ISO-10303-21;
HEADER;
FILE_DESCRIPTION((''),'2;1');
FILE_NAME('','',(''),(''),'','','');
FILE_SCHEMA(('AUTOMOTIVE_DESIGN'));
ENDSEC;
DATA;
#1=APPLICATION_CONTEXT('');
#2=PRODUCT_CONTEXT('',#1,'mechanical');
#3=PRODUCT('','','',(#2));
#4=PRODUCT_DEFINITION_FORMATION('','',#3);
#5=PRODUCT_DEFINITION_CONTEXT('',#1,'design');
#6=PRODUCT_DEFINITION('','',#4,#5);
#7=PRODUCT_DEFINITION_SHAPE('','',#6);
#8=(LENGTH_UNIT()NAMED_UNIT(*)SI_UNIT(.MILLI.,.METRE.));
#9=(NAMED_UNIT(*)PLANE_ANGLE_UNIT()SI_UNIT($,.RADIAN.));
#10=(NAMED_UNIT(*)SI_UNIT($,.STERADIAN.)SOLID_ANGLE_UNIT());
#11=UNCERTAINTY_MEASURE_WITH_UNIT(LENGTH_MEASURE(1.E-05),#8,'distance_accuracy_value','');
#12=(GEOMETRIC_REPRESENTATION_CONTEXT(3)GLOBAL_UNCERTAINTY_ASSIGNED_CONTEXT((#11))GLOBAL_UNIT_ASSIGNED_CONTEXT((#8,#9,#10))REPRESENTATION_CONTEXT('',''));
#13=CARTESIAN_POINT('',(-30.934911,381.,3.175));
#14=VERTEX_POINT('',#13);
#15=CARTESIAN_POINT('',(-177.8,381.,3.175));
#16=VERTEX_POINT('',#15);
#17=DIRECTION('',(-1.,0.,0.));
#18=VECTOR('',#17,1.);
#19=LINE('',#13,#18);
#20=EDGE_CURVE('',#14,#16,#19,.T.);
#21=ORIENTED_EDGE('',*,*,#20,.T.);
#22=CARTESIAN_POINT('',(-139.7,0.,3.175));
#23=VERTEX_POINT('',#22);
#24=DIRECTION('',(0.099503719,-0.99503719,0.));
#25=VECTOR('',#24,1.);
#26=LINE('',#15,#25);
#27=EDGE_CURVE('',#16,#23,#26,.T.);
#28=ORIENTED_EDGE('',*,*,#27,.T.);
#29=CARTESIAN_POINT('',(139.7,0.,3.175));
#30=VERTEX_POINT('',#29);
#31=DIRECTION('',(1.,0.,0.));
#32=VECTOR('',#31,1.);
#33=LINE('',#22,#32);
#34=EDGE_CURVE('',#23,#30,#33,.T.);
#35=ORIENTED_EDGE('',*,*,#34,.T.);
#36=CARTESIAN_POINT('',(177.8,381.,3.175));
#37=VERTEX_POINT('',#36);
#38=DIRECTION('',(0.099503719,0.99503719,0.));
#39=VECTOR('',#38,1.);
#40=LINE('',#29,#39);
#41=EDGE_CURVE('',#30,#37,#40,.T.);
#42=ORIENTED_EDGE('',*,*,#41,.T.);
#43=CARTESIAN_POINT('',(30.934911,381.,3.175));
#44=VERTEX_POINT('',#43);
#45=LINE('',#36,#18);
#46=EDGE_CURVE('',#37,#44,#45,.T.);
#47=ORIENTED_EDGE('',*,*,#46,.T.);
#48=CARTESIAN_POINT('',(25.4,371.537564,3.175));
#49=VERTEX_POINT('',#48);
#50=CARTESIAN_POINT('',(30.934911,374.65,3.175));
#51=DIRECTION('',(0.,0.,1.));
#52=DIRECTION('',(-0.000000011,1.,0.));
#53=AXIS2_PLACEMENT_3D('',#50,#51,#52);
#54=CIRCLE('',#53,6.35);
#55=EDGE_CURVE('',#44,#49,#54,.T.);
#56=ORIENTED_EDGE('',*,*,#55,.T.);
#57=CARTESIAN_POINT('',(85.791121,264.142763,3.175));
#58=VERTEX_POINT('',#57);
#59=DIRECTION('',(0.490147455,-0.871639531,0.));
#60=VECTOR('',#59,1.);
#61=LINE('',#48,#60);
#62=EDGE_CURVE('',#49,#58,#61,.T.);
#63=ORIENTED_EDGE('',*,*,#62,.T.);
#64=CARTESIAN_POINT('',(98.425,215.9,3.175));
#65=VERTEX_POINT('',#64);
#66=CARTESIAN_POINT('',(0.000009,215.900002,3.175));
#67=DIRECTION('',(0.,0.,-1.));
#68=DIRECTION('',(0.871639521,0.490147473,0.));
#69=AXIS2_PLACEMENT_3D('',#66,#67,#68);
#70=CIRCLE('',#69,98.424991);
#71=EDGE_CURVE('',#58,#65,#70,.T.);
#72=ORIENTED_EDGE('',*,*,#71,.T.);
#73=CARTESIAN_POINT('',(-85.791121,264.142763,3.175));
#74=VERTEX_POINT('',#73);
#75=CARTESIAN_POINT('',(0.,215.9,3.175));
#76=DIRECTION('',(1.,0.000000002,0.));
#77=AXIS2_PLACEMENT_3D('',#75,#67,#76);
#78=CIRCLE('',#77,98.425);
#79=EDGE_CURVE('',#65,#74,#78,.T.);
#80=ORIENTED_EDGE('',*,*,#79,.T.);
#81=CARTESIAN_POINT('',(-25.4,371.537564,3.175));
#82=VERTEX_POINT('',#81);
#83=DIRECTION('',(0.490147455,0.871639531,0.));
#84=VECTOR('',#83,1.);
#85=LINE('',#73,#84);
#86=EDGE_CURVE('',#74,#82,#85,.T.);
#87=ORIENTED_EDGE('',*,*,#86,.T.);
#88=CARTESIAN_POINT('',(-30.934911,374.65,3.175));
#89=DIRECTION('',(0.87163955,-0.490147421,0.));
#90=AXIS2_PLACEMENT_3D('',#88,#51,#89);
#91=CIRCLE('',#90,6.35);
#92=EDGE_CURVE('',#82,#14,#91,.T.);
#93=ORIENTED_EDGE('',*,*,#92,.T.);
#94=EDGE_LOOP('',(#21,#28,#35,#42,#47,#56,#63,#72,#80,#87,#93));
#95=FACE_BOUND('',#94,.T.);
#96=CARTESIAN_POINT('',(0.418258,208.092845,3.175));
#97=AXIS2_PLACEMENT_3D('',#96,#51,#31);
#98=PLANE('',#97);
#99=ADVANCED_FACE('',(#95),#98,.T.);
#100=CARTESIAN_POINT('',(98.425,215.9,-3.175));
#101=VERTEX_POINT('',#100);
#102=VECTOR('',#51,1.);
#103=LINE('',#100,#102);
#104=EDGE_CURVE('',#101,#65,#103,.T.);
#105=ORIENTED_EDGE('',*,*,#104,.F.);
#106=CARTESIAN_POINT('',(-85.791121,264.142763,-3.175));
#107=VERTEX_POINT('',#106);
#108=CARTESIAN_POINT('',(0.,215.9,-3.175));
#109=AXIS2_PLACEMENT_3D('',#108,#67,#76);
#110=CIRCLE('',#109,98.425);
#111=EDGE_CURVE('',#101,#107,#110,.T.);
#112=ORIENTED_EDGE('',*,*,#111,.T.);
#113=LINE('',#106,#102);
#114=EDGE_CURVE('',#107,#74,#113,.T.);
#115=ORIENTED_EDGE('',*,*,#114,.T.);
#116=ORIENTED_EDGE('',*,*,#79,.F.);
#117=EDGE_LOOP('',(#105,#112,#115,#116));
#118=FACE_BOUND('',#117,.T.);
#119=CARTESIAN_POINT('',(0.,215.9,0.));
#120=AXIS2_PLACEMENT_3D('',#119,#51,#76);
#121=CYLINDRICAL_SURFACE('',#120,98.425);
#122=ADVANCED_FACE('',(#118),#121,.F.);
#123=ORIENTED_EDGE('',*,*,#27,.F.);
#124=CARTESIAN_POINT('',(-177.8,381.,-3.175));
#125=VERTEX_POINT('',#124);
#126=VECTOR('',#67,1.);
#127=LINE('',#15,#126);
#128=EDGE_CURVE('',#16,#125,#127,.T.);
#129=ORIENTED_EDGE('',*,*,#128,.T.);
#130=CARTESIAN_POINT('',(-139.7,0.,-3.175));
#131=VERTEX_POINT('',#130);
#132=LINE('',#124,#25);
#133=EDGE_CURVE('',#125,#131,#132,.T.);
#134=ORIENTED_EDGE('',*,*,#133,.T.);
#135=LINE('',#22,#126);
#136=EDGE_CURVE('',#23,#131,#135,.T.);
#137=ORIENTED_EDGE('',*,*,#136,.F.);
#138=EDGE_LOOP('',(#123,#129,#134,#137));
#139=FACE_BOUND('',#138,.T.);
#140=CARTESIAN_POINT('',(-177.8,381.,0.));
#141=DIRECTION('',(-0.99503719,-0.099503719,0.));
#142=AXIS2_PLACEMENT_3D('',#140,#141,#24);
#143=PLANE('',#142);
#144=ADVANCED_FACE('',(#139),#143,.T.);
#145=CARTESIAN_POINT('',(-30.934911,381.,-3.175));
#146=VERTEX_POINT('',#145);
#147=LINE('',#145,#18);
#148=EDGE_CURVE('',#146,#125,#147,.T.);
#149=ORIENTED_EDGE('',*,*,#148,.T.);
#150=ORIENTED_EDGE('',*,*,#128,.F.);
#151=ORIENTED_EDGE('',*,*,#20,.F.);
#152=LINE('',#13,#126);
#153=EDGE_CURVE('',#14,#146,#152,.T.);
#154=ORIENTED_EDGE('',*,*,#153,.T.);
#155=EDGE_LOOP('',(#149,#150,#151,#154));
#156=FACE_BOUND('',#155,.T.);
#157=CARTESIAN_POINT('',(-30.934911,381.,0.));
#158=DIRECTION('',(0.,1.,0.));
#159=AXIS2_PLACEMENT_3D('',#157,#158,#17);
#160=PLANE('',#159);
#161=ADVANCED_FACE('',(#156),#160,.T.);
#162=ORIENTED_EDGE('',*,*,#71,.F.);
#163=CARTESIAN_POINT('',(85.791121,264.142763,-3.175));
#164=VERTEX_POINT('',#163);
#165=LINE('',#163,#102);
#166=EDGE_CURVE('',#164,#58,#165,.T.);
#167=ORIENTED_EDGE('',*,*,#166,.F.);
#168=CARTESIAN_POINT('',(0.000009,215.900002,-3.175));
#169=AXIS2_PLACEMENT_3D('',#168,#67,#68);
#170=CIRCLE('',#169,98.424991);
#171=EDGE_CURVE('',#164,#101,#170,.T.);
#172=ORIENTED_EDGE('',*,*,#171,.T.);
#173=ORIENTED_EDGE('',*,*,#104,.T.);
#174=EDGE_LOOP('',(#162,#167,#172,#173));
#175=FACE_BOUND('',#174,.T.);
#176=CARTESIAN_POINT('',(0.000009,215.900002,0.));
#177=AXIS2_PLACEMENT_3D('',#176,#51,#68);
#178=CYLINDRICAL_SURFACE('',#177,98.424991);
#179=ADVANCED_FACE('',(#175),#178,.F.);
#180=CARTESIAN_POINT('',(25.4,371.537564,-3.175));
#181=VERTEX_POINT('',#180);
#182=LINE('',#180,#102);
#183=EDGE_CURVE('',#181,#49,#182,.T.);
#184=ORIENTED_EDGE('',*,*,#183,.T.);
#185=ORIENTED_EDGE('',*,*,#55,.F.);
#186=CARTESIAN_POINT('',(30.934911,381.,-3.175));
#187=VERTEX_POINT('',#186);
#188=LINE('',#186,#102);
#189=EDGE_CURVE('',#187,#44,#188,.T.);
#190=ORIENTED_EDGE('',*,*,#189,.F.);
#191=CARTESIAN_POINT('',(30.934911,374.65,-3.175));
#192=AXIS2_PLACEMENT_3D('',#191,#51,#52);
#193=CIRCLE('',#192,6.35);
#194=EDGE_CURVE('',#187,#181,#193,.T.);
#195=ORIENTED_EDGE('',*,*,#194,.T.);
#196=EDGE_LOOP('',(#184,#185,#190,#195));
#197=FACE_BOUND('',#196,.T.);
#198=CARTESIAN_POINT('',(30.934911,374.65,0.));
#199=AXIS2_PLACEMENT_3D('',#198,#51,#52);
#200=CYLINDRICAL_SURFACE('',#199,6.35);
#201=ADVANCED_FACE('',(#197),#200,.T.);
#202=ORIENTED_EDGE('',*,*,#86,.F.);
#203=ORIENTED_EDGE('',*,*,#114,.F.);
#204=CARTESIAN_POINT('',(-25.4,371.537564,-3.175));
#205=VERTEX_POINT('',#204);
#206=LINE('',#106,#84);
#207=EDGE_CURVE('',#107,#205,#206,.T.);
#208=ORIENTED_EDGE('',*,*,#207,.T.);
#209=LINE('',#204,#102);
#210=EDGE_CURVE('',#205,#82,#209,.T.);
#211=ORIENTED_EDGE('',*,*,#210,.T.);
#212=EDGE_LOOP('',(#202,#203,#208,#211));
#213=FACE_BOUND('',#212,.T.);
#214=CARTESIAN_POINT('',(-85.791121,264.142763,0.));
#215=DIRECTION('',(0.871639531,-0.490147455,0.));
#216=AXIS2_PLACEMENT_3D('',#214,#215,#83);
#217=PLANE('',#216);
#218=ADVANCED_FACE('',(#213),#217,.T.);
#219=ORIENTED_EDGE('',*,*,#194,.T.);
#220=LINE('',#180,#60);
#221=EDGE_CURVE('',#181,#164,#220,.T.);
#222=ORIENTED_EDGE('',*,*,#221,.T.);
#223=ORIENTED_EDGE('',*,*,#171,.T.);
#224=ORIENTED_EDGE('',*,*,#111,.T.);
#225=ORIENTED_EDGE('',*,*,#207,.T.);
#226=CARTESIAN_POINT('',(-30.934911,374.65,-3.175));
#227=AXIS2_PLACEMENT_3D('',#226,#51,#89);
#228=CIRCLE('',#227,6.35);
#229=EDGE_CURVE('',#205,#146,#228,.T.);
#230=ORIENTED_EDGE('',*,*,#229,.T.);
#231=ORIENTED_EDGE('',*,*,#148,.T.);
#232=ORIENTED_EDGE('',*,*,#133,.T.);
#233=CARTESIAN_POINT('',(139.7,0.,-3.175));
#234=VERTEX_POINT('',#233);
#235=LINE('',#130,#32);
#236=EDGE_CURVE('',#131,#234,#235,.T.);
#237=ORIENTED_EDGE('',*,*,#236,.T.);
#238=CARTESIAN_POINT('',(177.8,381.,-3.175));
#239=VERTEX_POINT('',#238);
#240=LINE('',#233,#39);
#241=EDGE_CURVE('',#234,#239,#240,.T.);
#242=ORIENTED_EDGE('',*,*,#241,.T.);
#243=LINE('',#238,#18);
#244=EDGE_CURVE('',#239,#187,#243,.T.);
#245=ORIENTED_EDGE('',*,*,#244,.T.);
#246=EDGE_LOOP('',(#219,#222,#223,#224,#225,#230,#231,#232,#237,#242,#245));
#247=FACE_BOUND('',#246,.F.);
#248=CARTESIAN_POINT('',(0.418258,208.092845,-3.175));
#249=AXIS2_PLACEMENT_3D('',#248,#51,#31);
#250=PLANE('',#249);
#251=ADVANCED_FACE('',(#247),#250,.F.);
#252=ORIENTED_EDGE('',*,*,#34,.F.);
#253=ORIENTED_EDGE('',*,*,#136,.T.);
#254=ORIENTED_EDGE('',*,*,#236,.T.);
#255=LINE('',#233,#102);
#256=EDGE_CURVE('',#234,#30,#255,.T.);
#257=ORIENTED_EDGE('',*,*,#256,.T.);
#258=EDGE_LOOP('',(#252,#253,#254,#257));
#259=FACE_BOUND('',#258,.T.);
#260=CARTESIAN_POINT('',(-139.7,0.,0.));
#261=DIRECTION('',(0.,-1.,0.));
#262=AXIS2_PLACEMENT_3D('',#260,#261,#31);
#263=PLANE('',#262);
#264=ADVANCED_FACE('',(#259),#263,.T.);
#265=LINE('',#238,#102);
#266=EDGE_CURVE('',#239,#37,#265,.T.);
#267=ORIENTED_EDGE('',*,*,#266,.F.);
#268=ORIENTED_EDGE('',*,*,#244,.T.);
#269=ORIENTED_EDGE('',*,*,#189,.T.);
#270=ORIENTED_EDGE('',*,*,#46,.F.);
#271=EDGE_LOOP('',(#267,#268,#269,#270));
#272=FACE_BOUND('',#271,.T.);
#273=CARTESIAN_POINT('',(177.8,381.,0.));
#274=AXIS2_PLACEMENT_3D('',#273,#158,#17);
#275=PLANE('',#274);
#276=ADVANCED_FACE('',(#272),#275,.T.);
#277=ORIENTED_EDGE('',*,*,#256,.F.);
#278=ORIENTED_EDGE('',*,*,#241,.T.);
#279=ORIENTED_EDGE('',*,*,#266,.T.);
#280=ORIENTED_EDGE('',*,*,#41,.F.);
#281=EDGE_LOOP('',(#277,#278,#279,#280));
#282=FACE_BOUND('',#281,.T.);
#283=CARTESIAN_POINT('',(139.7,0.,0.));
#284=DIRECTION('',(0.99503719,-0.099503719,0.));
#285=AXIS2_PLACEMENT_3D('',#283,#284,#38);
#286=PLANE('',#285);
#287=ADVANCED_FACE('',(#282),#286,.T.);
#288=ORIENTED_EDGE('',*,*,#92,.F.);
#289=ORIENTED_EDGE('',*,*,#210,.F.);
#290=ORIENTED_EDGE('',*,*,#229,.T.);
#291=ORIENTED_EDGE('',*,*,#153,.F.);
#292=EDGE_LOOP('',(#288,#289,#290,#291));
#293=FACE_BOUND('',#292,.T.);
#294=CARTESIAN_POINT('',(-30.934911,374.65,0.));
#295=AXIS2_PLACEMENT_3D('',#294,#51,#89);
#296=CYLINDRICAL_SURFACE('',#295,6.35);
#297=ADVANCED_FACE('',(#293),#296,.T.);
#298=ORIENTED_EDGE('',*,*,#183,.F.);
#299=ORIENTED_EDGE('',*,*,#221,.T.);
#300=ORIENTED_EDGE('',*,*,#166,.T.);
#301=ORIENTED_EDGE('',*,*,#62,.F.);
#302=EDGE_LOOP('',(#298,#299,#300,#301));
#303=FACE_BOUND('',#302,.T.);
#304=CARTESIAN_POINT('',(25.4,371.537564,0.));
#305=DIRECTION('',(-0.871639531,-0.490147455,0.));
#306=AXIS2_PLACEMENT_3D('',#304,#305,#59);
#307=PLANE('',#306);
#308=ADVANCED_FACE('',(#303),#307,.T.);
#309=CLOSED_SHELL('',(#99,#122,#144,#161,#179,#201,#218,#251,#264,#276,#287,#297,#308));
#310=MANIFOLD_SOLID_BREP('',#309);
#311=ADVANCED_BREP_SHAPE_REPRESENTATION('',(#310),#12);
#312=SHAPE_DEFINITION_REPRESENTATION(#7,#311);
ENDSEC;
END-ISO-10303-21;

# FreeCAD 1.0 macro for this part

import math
import FreeCAD as App
import Part
import Sketcher

V = App.Vector
Q = App.Units.Quantity

doc = App.newDocument("Part")
body = doc.addObject("PartDesign::Body", "Body")

# Sketch on XY plane
sketch1 = doc.addObject("Sketcher::SketchObject", "Sketch")
body.addObject(sketch1)
sketch1.AttachmentSupport = (doc.XY_Plane, [""])
sketch1.MapMode = "FlatFace"
sketch1.addGeometry(Part.LineSegment(V(-139.7, 0, 0), V(139.7, 0, 0)), False)
sketch1.addGeometry(Part.LineSegment(V(139.7, 0, 0), V(177.8, 381, 0)), False)
sketch1.addGeometry(Part.LineSegment(V(177.8, 381, 0), V(30.934911, 381, 0)), False)
sketch1.addGeometry(Part.ArcOfCircle(Part.Circle(V(30.934911, 374.65, 0), V(0, 0, 1), 6.35), math.radians(90.000001), math.radians(209.350272)), False)
sketch1.addGeometry(Part.LineSegment(V(25.4, 371.537564, 0), V(85.791121, 264.142763, 0)), False)
sketch1.addGeometry(Part.ArcOfCircle(Part.Circle(V(0.000009, 215.900002, 0), V(0, 0, 1), 98.424991), math.radians(-0.000001), math.radians(29.350275)), False)
sketch1.addGeometry(Part.ArcOfCircle(Part.Circle(V(0, 215.9, 0), V(0, 0, 1), 98.425), math.radians(150.649726), math.radians(360)), False)
sketch1.addGeometry(Part.LineSegment(V(-85.791121, 264.142763, 0), V(-25.4, 371.537564, 0)), False)
sketch1.addGeometry(Part.ArcOfCircle(Part.Circle(V(-30.934911, 374.65, 0), V(0, 0, 1), 6.35), math.radians(-29.350272), math.radians(89.999999)), False)
sketch1.addGeometry(Part.LineSegment(V(-30.934911, 381, 0), V(-177.8, 381, 0)), False)
sketch1.addGeometry(Part.LineSegment(V(-177.8, 381, 0), V(-139.7, 0, 0)), False)
sketch1.addConstraint(Sketcher.Constraint("Coincident", 0, 2, 1, 1))
sketch1.addConstraint(Sketcher.Constraint("Coincident", 1, 2, 2, 1))
sketch1.addConstraint(Sketcher.Constraint("Tangent", 2, 2, 3, 1))
sketch1.addConstraint(Sketcher.Constraint("Tangent", 3, 2, 4, 1))
sketch1.addConstraint(Sketcher.Constraint("Tangent", 4, 2, 5, 2))
sketch1.addConstraint(Sketcher.Constraint("Tangent", 5, 1, 6, 2))
sketch1.addConstraint(Sketcher.Constraint("Tangent", 6, 1, 7, 1))
sketch1.addConstraint(Sketcher.Constraint("Tangent", 7, 2, 8, 1))
sketch1.addConstraint(Sketcher.Constraint("Tangent", 8, 2, 9, 1))
sketch1.addConstraint(Sketcher.Constraint("Coincident", 9, 2, 10, 1))
sketch1.addConstraint(Sketcher.Constraint("Coincident", 10, 2, 0, 1))
sketch1.addConstraint(Sketcher.Constraint("Horizontal", 0))
sketch1.addConstraint(Sketcher.Constraint("Horizontal", 2))
sketch1.addConstraint(Sketcher.Constraint("Horizontal", 9))
sketch1.addConstraint(Sketcher.Constraint("Equal", 3, 8))
sketch1.addConstraint(Sketcher.Constraint("Symmetric", 0, 2, 10, 2, -1, 1))
sketch1.addConstraint(Sketcher.Constraint("Symmetric", 3, 3, 8, 3, -2))
sketch1.addConstraint(Sketcher.Constraint("Symmetric", 4, 2, 6, 1, -2))
sketch1.addConstraint(Sketcher.Constraint("Horizontal", 6, 3, 5, 1))
sketch1.addConstraint(Sketcher.Constraint("Equal", 2, 9))
sketch1.addConstraint(Sketcher.Constraint("DistanceX", 0, 1, 0, 2, Q("11 in")))
sketch1.addConstraint(Sketcher.Constraint("Radius", 3, Q("0.25 in")))
sketch1.addConstraint(Sketcher.Constraint("DistanceX", -1, 1, 1, 2, Q("7 in")))
sketch1.addConstraint(Sketcher.Constraint("DistanceY", -1, 1, 1, 2, Q("15 in")))
sketch1.addConstraint(Sketcher.Constraint("DistanceX", -1, 1, 3, 2, Q("1 in")))
sketch1.addConstraint(Sketcher.Constraint("Radius", 6, Q("3.875 in")))
sketch1.addConstraint(Sketcher.Constraint("DistanceY", -1, 1, 5, 3, Q("8.5000001 in")))
pad1 = doc.addObject("PartDesign::Pad", "Pad")
body.addObject(pad1)
pad1.Profile = sketch1
pad1.Length = Q("0.25 in")
pad1.Midplane = True

doc.recompute()
